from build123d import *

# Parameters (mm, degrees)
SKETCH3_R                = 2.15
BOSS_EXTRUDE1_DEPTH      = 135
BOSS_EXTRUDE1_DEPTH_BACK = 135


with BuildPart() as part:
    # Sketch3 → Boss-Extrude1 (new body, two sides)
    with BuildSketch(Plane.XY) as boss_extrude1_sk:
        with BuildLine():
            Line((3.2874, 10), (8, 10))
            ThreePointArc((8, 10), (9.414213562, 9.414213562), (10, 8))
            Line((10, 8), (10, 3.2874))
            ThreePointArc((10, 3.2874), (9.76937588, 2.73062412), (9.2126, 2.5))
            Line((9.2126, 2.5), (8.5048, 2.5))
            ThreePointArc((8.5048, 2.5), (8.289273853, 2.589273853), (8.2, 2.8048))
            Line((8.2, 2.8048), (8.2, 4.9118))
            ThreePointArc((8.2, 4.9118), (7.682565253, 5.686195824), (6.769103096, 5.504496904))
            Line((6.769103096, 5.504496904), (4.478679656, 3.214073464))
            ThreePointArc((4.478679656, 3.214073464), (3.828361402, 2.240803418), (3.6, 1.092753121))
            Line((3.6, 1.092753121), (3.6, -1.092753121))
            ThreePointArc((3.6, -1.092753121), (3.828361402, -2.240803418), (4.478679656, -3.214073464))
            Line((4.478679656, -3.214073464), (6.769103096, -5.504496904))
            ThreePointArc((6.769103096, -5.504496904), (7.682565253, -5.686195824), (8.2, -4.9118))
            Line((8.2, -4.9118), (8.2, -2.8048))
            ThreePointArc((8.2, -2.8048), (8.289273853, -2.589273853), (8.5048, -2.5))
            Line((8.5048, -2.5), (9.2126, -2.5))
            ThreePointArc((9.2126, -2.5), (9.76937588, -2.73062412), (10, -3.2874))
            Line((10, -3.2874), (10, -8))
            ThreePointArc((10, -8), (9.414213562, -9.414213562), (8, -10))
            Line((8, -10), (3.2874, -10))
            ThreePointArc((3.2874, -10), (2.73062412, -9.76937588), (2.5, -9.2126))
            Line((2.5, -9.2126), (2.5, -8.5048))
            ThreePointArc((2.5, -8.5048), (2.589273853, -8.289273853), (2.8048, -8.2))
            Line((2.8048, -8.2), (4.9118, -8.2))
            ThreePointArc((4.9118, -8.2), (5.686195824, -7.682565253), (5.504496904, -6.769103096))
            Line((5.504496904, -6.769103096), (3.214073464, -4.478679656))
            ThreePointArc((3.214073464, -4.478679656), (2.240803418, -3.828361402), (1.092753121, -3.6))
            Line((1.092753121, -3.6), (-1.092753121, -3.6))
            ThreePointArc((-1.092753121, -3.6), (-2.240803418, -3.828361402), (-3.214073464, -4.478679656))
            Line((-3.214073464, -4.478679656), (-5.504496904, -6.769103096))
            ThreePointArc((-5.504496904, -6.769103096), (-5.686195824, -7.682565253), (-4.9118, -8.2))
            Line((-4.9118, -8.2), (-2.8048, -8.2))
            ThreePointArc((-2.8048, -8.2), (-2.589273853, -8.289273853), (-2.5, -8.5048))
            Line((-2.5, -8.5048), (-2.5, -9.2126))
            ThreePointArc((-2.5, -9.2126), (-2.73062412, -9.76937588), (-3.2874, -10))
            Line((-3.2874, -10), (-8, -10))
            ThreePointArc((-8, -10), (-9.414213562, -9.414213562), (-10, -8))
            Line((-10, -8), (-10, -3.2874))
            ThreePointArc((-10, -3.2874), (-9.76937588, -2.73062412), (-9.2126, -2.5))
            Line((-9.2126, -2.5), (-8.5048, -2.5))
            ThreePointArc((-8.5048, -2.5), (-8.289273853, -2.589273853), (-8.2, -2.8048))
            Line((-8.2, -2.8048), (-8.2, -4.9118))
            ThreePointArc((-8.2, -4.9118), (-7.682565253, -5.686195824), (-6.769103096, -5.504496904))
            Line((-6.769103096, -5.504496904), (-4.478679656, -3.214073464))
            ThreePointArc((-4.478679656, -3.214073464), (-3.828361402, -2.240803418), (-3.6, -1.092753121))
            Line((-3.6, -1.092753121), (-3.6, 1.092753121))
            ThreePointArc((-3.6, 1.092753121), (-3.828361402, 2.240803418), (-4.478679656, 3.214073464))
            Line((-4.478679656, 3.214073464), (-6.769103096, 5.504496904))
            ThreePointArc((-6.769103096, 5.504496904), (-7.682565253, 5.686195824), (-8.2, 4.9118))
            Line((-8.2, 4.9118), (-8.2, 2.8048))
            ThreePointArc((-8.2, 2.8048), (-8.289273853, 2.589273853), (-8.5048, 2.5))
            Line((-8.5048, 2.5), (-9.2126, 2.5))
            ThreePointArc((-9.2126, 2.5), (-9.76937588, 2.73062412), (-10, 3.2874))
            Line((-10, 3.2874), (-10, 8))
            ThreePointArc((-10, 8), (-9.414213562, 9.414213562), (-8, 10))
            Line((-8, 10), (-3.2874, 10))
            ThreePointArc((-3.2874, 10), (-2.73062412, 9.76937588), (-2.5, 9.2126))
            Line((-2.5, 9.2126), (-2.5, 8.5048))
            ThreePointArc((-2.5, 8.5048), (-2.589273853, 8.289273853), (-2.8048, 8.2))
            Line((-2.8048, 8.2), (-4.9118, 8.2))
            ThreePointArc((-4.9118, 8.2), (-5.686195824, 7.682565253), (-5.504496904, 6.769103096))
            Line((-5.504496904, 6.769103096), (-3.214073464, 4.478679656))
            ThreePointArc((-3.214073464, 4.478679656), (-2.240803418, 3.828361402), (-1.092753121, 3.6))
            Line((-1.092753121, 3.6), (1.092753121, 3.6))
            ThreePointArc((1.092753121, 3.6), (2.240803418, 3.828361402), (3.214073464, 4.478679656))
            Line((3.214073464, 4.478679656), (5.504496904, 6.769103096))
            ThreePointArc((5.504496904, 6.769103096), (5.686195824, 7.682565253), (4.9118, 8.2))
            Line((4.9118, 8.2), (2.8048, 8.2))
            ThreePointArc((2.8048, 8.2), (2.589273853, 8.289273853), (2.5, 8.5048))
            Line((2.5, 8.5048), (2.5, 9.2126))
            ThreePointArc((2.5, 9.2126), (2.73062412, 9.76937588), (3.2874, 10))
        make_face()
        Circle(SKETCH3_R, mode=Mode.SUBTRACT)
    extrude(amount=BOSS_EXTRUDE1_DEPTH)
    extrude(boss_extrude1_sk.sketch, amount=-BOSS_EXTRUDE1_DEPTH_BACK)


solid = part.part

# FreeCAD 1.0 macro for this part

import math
import FreeCAD as App
import Part
import Sketcher
Q = App.Units.Quantity

doc = App.newDocument("Part")
body = doc.addObject("PartDesign::Body", "Body")

sketch1 = body.newObject("Sketcher::SketchObject", "Sketch")
sketch1.AttachmentSupport = (doc.getObject("XY_Plane"), [""])
sketch1.MapMode = "FlatFace"
sketch1.addGeometry([
    Part.LineSegment(App.Vector(8, 10, 0), App.Vector(3.29, 10, 0)),
    Part.ArcOfCircle(Part.Circle(App.Vector(3.29, 9.21, 0), App.Vector(0, 0, 1), 0.79), math.radians(90), math.radians(180)),
    Part.LineSegment(App.Vector(2.5, 9.21, 0), App.Vector(2.5, 8.5, 0)),
    Part.ArcOfCircle(Part.Circle(App.Vector(2.8, 8.5, 0), App.Vector(0, 0, 1), 0.3), math.radians(180), math.radians(270)),
    Part.LineSegment(App.Vector(2.8, 8.2, 0), App.Vector(4.91, 8.2, 0)),
    Part.ArcOfCircle(Part.Circle(App.Vector(4.91, 7.36, 0), App.Vector(0, 0, 1), 0.84), math.radians(-45), math.radians(90)),
    Part.LineSegment(App.Vector(5.5, 6.77, 0), App.Vector(3.21, 4.48, 0)),
    Part.ArcOfCircle(Part.Circle(App.Vector(1.09, 6.6, 0), App.Vector(0, 0, 1), 3), math.radians(-90), math.radians(-45)),
    Part.LineSegment(App.Vector(1.09, 3.6, 0), App.Vector(-1.09, 3.6, 0)),
    Part.ArcOfCircle(Part.Circle(App.Vector(-1.09, 6.6, 0), App.Vector(0, 0, 1), 3), math.radians(-135), math.radians(-90)),
    Part.LineSegment(App.Vector(-3.21, 4.48, 0), App.Vector(-5.5, 6.77, 0)),
    Part.ArcOfCircle(Part.Circle(App.Vector(-4.91, 7.36, 0), App.Vector(0, 0, 1), 0.84), math.radians(90), math.radians(225)),
    Part.LineSegment(App.Vector(-4.91, 8.2, 0), App.Vector(-2.8, 8.2, 0)),
    Part.ArcOfCircle(Part.Circle(App.Vector(-2.8, 8.5, 0), App.Vector(0, 0, 1), 0.3), math.radians(-90), math.radians(0)),
    Part.LineSegment(App.Vector(-2.5, 8.5, 0), App.Vector(-2.5, 9.21, 0)),
    Part.ArcOfCircle(Part.Circle(App.Vector(-3.29, 9.21, 0), App.Vector(0, 0, 1), 0.79), math.radians(0), math.radians(90)),
    Part.LineSegment(App.Vector(-3.29, 10, 0), App.Vector(-8, 10, 0)),
    Part.ArcOfCircle(Part.Circle(App.Vector(-8, 8, 0), App.Vector(0, 0, 1), 2), math.radians(90), math.radians(180)),
    Part.LineSegment(App.Vector(-10, 8, 0), App.Vector(-10, 3.29, 0)),
    Part.ArcOfCircle(Part.Circle(App.Vector(-9.21, 3.29, 0), App.Vector(0, 0, 1), 0.79), math.radians(180), math.radians(270)),
    Part.LineSegment(App.Vector(-9.21, 2.5, 0), App.Vector(-8.5, 2.5, 0)),
    Part.ArcOfCircle(Part.Circle(App.Vector(-8.5, 2.8, 0), App.Vector(0, 0, 1), 0.3), math.radians(-90), math.radians(0)),
    Part.LineSegment(App.Vector(-8.2, 2.8, 0), App.Vector(-8.2, 4.91, 0)),
    Part.ArcOfCircle(Part.Circle(App.Vector(-7.36, 4.91, 0), App.Vector(0, 0, 1), 0.84), math.radians(45), math.radians(180)),
    Part.LineSegment(App.Vector(-6.77, 5.5, 0), App.Vector(-4.48, 3.21, 0)),
    Part.ArcOfCircle(Part.Circle(App.Vector(-6.6, 1.09, 0), App.Vector(0, 0, 1), 3), math.radians(0), math.radians(45)),
    Part.LineSegment(App.Vector(-3.6, 1.09, 0), App.Vector(-3.6, -1.09, 0)),
    Part.ArcOfCircle(Part.Circle(App.Vector(-6.6, -1.09, 0), App.Vector(0, 0, 1), 3), math.radians(-45), math.radians(0)),
    Part.LineSegment(App.Vector(-4.48, -3.21, 0), App.Vector(-6.77, -5.5, 0)),
    Part.ArcOfCircle(Part.Circle(App.Vector(-7.36, -4.91, 0), App.Vector(0, 0, 1), 0.84), math.radians(180), math.radians(315)),
    Part.LineSegment(App.Vector(-8.2, -4.91, 0), App.Vector(-8.2, -2.8, 0)),
    Part.ArcOfCircle(Part.Circle(App.Vector(-8.5, -2.8, 0), App.Vector(0, 0, 1), 0.3), math.radians(0), math.radians(90)),
    Part.LineSegment(App.Vector(-8.5, -2.5, 0), App.Vector(-9.21, -2.5, 0)),
    Part.ArcOfCircle(Part.Circle(App.Vector(-9.21, -3.29, 0), App.Vector(0, 0, 1), 0.79), math.radians(90), math.radians(180)),
    Part.LineSegment(App.Vector(-10, -3.29, 0), App.Vector(-10, -8, 0)),
    Part.ArcOfCircle(Part.Circle(App.Vector(-8, -8, 0), App.Vector(0, 0, 1), 2), math.radians(-180), math.radians(-90)),
    Part.LineSegment(App.Vector(-8, -10, 0), App.Vector(-3.29, -10, 0)),
    Part.ArcOfCircle(Part.Circle(App.Vector(-3.29, -9.21, 0), App.Vector(0, 0, 1), 0.79), math.radians(-90), math.radians(0)),
    Part.LineSegment(App.Vector(-2.5, -9.21, 0), App.Vector(-2.5, -8.5, 0)),
    Part.ArcOfCircle(Part.Circle(App.Vector(-2.8, -8.5, 0), App.Vector(0, 0, 1), 0.3), math.radians(0), math.radians(90)),
    Part.LineSegment(App.Vector(-2.8, -8.2, 0), App.Vector(-4.91, -8.2, 0)),
    Part.ArcOfCircle(Part.Circle(App.Vector(-4.91, -7.36, 0), App.Vector(0, 0, 1), 0.84), math.radians(135), math.radians(270)),
    Part.LineSegment(App.Vector(-5.5, -6.77, 0), App.Vector(-3.21, -4.48, 0)),
    Part.ArcOfCircle(Part.Circle(App.Vector(-1.09, -6.6, 0), App.Vector(0, 0, 1), 3), math.radians(90), math.radians(135)),
    Part.LineSegment(App.Vector(-1.09, -3.6, 0), App.Vector(1.09, -3.6, 0)),
    Part.ArcOfCircle(Part.Circle(App.Vector(1.09, -6.6, 0), App.Vector(0, 0, 1), 3), math.radians(45), math.radians(90)),
    Part.LineSegment(App.Vector(3.21, -4.48, 0), App.Vector(5.5, -6.77, 0)),
    Part.ArcOfCircle(Part.Circle(App.Vector(4.91, -7.36, 0), App.Vector(0, 0, 1), 0.84), math.radians(-90), math.radians(45)),
    Part.LineSegment(App.Vector(4.91, -8.2, 0), App.Vector(2.8, -8.2, 0)),
    Part.ArcOfCircle(Part.Circle(App.Vector(2.8, -8.5, 0), App.Vector(0, 0, 1), 0.3), math.radians(90), math.radians(180)),
    Part.LineSegment(App.Vector(2.5, -8.5, 0), App.Vector(2.5, -9.21, 0)),
    Part.ArcOfCircle(Part.Circle(App.Vector(3.29, -9.21, 0), App.Vector(0, 0, 1), 0.79), math.radians(180), math.radians(270)),
    Part.LineSegment(App.Vector(3.29, -10, 0), App.Vector(8, -10, 0)),
    Part.ArcOfCircle(Part.Circle(App.Vector(8, -8, 0), App.Vector(0, 0, 1), 2), math.radians(-90), math.radians(0)),
    Part.LineSegment(App.Vector(10, -8, 0), App.Vector(10, -3.29, 0)),
    Part.ArcOfCircle(Part.Circle(App.Vector(9.21, -3.29, 0), App.Vector(0, 0, 1), 0.79), math.radians(0), math.radians(90)),
    Part.LineSegment(App.Vector(9.21, -2.5, 0), App.Vector(8.5, -2.5, 0)),
    Part.ArcOfCircle(Part.Circle(App.Vector(8.5, -2.8, 0), App.Vector(0, 0, 1), 0.3), math.radians(90), math.radians(180)),
    Part.LineSegment(App.Vector(8.2, -2.8, 0), App.Vector(8.2, -4.91, 0)),
    Part.ArcOfCircle(Part.Circle(App.Vector(7.36, -4.91, 0), App.Vector(0, 0, 1), 0.84), math.radians(-135), math.radians(0)),
    Part.LineSegment(App.Vector(6.77, -5.5, 0), App.Vector(4.48, -3.21, 0)),
    Part.ArcOfCircle(Part.Circle(App.Vector(6.6, -1.09, 0), App.Vector(0, 0, 1), 3), math.radians(180), math.radians(225)),
    Part.LineSegment(App.Vector(3.6, -1.09, 0), App.Vector(3.6, 1.09, 0)),
    Part.ArcOfCircle(Part.Circle(App.Vector(6.6, 1.09, 0), App.Vector(0, 0, 1), 3), math.radians(135), math.radians(180)),
    Part.LineSegment(App.Vector(4.48, 3.21, 0), App.Vector(6.77, 5.5, 0)),
    Part.ArcOfCircle(Part.Circle(App.Vector(7.36, 4.91, 0), App.Vector(0, 0, 1), 0.84), math.radians(0), math.radians(135)),
    Part.LineSegment(App.Vector(8.2, 4.91, 0), App.Vector(8.2, 2.8, 0)),
    Part.ArcOfCircle(Part.Circle(App.Vector(8.5, 2.8, 0), App.Vector(0, 0, 1), 0.3), math.radians(180), math.radians(270)),
    Part.LineSegment(App.Vector(8.5, 2.5, 0), App.Vector(9.21, 2.5, 0)),
    Part.ArcOfCircle(Part.Circle(App.Vector(9.21, 3.29, 0), App.Vector(0, 0, 1), 0.79), math.radians(-90), math.radians(0)),
    Part.LineSegment(App.Vector(10, 3.29, 0), App.Vector(10, 8, 0)),
    Part.ArcOfCircle(Part.Circle(App.Vector(8, 8, 0), App.Vector(0, 0, 1), 2), math.radians(0), math.radians(90)),
    Part.Circle(App.Vector(0, 0, 0), App.Vector(0, 0, 1), 2.15),
], False)
sketch1.addConstraint([
    Sketcher.Constraint("Tangent", 0, 2, 1, 1),
    Sketcher.Constraint("Tangent", 1, 2, 2, 1),
    Sketcher.Constraint("Tangent", 2, 2, 3, 1),
    Sketcher.Constraint("Tangent", 3, 2, 4, 1),
    Sketcher.Constraint("Tangent", 4, 2, 5, 2),
    Sketcher.Constraint("Tangent", 5, 1, 6, 1),
    Sketcher.Constraint("Tangent", 6, 2, 7, 2),
    Sketcher.Constraint("Tangent", 7, 1, 8, 1),
    Sketcher.Constraint("Tangent", 8, 2, 9, 2),
    Sketcher.Constraint("Tangent", 9, 1, 10, 1),
    Sketcher.Constraint("Tangent", 10, 2, 11, 2),
    Sketcher.Constraint("Tangent", 11, 1, 12, 1),
    Sketcher.Constraint("Tangent", 12, 2, 13, 1),
    Sketcher.Constraint("Tangent", 13, 2, 14, 1),
    Sketcher.Constraint("Tangent", 14, 2, 15, 1),
    Sketcher.Constraint("Tangent", 15, 2, 16, 1),
    Sketcher.Constraint("Tangent", 16, 2, 17, 1),
    Sketcher.Constraint("Tangent", 17, 2, 18, 1),
    Sketcher.Constraint("Tangent", 18, 2, 19, 1),
    Sketcher.Constraint("Tangent", 19, 2, 20, 1),
    Sketcher.Constraint("Tangent", 20, 2, 21, 1),
    Sketcher.Constraint("Tangent", 21, 2, 22, 1),
    Sketcher.Constraint("Tangent", 22, 2, 23, 2),
    Sketcher.Constraint("Tangent", 23, 1, 24, 1),
    Sketcher.Constraint("Tangent", 24, 2, 25, 2),
    Sketcher.Constraint("Tangent", 25, 1, 26, 1),
    Sketcher.Constraint("Tangent", 26, 2, 27, 2),
    Sketcher.Constraint("Tangent", 27, 1, 28, 1),
    Sketcher.Constraint("Tangent", 28, 2, 29, 2),
    Sketcher.Constraint("Tangent", 29, 1, 30, 1),
    Sketcher.Constraint("Tangent", 30, 2, 31, 1),
    Sketcher.Constraint("Tangent", 31, 2, 32, 1),
    Sketcher.Constraint("Tangent", 32, 2, 33, 1),
    Sketcher.Constraint("Tangent", 33, 2, 34, 1),
    Sketcher.Constraint("Tangent", 34, 2, 35, 1),
    Sketcher.Constraint("Tangent", 35, 2, 36, 1),
    Sketcher.Constraint("Tangent", 36, 2, 37, 1),
    Sketcher.Constraint("Tangent", 37, 2, 38, 1),
    Sketcher.Constraint("Tangent", 38, 2, 39, 1),
    Sketcher.Constraint("Tangent", 39, 2, 40, 1),
    Sketcher.Constraint("Tangent", 40, 2, 41, 2),
    Sketcher.Constraint("Tangent", 41, 1, 42, 1),
    Sketcher.Constraint("Tangent", 42, 2, 43, 2),
    Sketcher.Constraint("Tangent", 43, 1, 44, 1),
    Sketcher.Constraint("Tangent", 44, 2, 45, 2),
    Sketcher.Constraint("Tangent", 45, 1, 46, 1),
    Sketcher.Constraint("Tangent", 46, 2, 47, 2),
    Sketcher.Constraint("Tangent", 47, 1, 48, 1),
    Sketcher.Constraint("Tangent", 48, 2, 49, 1),
    Sketcher.Constraint("Tangent", 49, 2, 50, 1),
    Sketcher.Constraint("Tangent", 50, 2, 51, 1),
    Sketcher.Constraint("Tangent", 51, 2, 52, 1),
    Sketcher.Constraint("Tangent", 52, 2, 53, 1),
    Sketcher.Constraint("Tangent", 53, 2, 54, 1),
    Sketcher.Constraint("Tangent", 54, 2, 55, 1),
    Sketcher.Constraint("Tangent", 55, 2, 56, 1),
    Sketcher.Constraint("Tangent", 56, 2, 57, 1),
    Sketcher.Constraint("Tangent", 57, 2, 58, 1),
    Sketcher.Constraint("Tangent", 58, 2, 59, 2),
    Sketcher.Constraint("Tangent", 59, 1, 60, 1),
    Sketcher.Constraint("Tangent", 60, 2, 61, 2),
    Sketcher.Constraint("Tangent", 61, 1, 62, 1),
    Sketcher.Constraint("Tangent", 62, 2, 63, 2),
    Sketcher.Constraint("Tangent", 63, 1, 64, 1),
    Sketcher.Constraint("Tangent", 64, 2, 65, 2),
    Sketcher.Constraint("Tangent", 65, 1, 66, 1),
    Sketcher.Constraint("Tangent", 66, 2, 67, 1),
    Sketcher.Constraint("Tangent", 67, 2, 68, 1),
    Sketcher.Constraint("Tangent", 68, 2, 69, 1),
    Sketcher.Constraint("Tangent", 69, 2, 70, 1),
    Sketcher.Constraint("Tangent", 70, 2, 71, 1),
    Sketcher.Constraint("Tangent", 71, 2, 0, 1),
    Sketcher.Constraint("Horizontal", 0),
    Sketcher.Constraint("Vertical", 2),
    Sketcher.Constraint("Horizontal", 4),
    Sketcher.Constraint("Horizontal", 8),
    Sketcher.Constraint("Horizontal", 12),
    Sketcher.Constraint("Vertical", 14),
    Sketcher.Constraint("Horizontal", 16),
    Sketcher.Constraint("Vertical", 18),
    Sketcher.Constraint("Horizontal", 20),
    Sketcher.Constraint("Vertical", 22),
    Sketcher.Constraint("Vertical", 26),
    Sketcher.Constraint("Vertical", 30),
    Sketcher.Constraint("Horizontal", 32),
    Sketcher.Constraint("Vertical", 34),
    Sketcher.Constraint("Horizontal", 36),
    Sketcher.Constraint("Vertical", 38),
    Sketcher.Constraint("Horizontal", 40),
    Sketcher.Constraint("Horizontal", 44),
    Sketcher.Constraint("Horizontal", 48),
    Sketcher.Constraint("Vertical", 50),
    Sketcher.Constraint("Horizontal", 52),
    Sketcher.Constraint("Vertical", 54),
    Sketcher.Constraint("Horizontal", 56),
    Sketcher.Constraint("Vertical", 58),
    Sketcher.Constraint("Vertical", 62),
    Sketcher.Constraint("Vertical", 66),
    Sketcher.Constraint("Horizontal", 68),
    Sketcher.Constraint("Vertical", 70),
    Sketcher.Constraint("Coincident", 72, 3, -1, 1),
    Sketcher.Constraint("Equal", 7, 9),
    Sketcher.Constraint("Equal", 5, 11),
    Sketcher.Constraint("Equal", 3, 13),
    Sketcher.Constraint("Equal", 1, 15),
    Sketcher.Constraint("Equal", 15, 19),
    Sketcher.Constraint("Equal", 13, 21),
    Sketcher.Constraint("Equal", 11, 23),
    Sketcher.Constraint("Equal", 9, 25),
    Sketcher.Constraint("Equal", 25, 27),
    Sketcher.Constraint("Equal", 23, 29),
    Sketcher.Constraint("Equal", 21, 31),
    Sketcher.Constraint("Equal", 19, 33),
    Sketcher.Constraint("Equal", 17, 35),
    Sketcher.Constraint("Equal", 33, 37),
    Sketcher.Constraint("Equal", 31, 39),
    Sketcher.Constraint("Equal", 29, 41),
    Sketcher.Constraint("Equal", 27, 43),
    Sketcher.Constraint("Equal", 43, 45),
    Sketcher.Constraint("Equal", 41, 47),
    Sketcher.Constraint("Equal", 39, 49),
    Sketcher.Constraint("Equal", 37, 51),
    Sketcher.Constraint("Equal", 35, 53),
    Sketcher.Constraint("Equal", 51, 55),
    Sketcher.Constraint("Equal", 49, 57),
    Sketcher.Constraint("Equal", 47, 59),
    Sketcher.Constraint("Equal", 45, 61),
    Sketcher.Constraint("Equal", 61, 63),
    Sketcher.Constraint("Equal", 59, 65),
    Sketcher.Constraint("Equal", 57, 67),
    Sketcher.Constraint("Equal", 55, 69),
    Sketcher.Constraint("Equal", 53, 71),
    Sketcher.Constraint("Symmetric", 1, 3, 37, 3, -1, 1),
    Sketcher.Constraint("Symmetric", 5, 3, 41, 3, -1, 1),
    Sketcher.Constraint("Symmetric", 7, 3, 43, 3, -1, 1),
    Sketcher.Constraint("Symmetric", 11, 3, 47, 3, -1, 1),
    Sketcher.Constraint("Symmetric", 15, 3, 51, 3, -1, 1),
    Sketcher.Constraint("Symmetric", 19, 3, 55, 3, -1, 1),
    Sketcher.Constraint("Symmetric", 23, 3, 59, 3, -1, 1),
    Sketcher.Constraint("Symmetric", 25, 3, 61, 3, -1, 1),
    Sketcher.Constraint("Symmetric", 29, 3, 65, 3, -1, 1),
    Sketcher.Constraint("Symmetric", 33, 3, 69, 3, -1, 1),
    Sketcher.Constraint("Symmetric", 5, 3, 11, 3, -2),
    Sketcher.Constraint("Symmetric", 1, 3, 15, 3, -2),
    Sketcher.Constraint("Symmetric", 33, 3, 55, 3, -2),
    Sketcher.Constraint("Symmetric", 29, 3, 59, 3, -2),
    Sketcher.Constraint("Perpendicular", 6, 10),
    Sketcher.Constraint("Parallel", 10, 24),
    Sketcher.Constraint("Perpendicular", 24, 28),
    Sketcher.Constraint("Perpendicular", 42, 46),
    Sketcher.Constraint("Perpendicular", 60, 64),
    Sketcher.Constraint("Horizontal", 27, 3, 61, 3),
    Sketcher.Constraint("Equal", 68, 2),
    Sketcher.Constraint("Equal", 52, 18),
    Sketcher.Constraint("Equal", 48, 22),
    Sketcher.Constraint("Equal", 44, 26),
    Sketcher.Constraint("Equal", 10, 24),
    Sketcher.Constraint("Radius", 7, Q("3 mm")),
    Sketcher.Constraint("Radius", 17, Q("2 mm")),
    Sketcher.Constraint("Diameter", 72, Q("4.3 mm")),
    Sketcher.Constraint("DistanceX", 17, 3, -1, 1, Q("8 mm")),
    Sketcher.Constraint("DistanceY", -1, 1, 7, 3, Q("6.6 mm")),
    Sketcher.Constraint("DistanceX", -1, 1, 1, 2, Q("2.5 mm")),
    Sketcher.Constraint("DistanceY", -1, 1, 3, 2, Q("8.2 mm")),
    Sketcher.Constraint("Radius", 1, Q("0.7874 mm")),
    Sketcher.Constraint("Radius", 3, Q("0.3048 mm")),
    Sketcher.Constraint("Radius", 5, Q("0.8382 mm")),
    Sketcher.Constraint("DistanceX", 4, 1, 4, 2, Q("2.107 mm")),
])
pad1 = body.newObject("PartDesign::Pad", "Pad")
pad1.Profile = sketch1
pad1.Type = "TwoLengths"
pad1.Length = 135
pad1.Length2 = 135

doc.recompute()
